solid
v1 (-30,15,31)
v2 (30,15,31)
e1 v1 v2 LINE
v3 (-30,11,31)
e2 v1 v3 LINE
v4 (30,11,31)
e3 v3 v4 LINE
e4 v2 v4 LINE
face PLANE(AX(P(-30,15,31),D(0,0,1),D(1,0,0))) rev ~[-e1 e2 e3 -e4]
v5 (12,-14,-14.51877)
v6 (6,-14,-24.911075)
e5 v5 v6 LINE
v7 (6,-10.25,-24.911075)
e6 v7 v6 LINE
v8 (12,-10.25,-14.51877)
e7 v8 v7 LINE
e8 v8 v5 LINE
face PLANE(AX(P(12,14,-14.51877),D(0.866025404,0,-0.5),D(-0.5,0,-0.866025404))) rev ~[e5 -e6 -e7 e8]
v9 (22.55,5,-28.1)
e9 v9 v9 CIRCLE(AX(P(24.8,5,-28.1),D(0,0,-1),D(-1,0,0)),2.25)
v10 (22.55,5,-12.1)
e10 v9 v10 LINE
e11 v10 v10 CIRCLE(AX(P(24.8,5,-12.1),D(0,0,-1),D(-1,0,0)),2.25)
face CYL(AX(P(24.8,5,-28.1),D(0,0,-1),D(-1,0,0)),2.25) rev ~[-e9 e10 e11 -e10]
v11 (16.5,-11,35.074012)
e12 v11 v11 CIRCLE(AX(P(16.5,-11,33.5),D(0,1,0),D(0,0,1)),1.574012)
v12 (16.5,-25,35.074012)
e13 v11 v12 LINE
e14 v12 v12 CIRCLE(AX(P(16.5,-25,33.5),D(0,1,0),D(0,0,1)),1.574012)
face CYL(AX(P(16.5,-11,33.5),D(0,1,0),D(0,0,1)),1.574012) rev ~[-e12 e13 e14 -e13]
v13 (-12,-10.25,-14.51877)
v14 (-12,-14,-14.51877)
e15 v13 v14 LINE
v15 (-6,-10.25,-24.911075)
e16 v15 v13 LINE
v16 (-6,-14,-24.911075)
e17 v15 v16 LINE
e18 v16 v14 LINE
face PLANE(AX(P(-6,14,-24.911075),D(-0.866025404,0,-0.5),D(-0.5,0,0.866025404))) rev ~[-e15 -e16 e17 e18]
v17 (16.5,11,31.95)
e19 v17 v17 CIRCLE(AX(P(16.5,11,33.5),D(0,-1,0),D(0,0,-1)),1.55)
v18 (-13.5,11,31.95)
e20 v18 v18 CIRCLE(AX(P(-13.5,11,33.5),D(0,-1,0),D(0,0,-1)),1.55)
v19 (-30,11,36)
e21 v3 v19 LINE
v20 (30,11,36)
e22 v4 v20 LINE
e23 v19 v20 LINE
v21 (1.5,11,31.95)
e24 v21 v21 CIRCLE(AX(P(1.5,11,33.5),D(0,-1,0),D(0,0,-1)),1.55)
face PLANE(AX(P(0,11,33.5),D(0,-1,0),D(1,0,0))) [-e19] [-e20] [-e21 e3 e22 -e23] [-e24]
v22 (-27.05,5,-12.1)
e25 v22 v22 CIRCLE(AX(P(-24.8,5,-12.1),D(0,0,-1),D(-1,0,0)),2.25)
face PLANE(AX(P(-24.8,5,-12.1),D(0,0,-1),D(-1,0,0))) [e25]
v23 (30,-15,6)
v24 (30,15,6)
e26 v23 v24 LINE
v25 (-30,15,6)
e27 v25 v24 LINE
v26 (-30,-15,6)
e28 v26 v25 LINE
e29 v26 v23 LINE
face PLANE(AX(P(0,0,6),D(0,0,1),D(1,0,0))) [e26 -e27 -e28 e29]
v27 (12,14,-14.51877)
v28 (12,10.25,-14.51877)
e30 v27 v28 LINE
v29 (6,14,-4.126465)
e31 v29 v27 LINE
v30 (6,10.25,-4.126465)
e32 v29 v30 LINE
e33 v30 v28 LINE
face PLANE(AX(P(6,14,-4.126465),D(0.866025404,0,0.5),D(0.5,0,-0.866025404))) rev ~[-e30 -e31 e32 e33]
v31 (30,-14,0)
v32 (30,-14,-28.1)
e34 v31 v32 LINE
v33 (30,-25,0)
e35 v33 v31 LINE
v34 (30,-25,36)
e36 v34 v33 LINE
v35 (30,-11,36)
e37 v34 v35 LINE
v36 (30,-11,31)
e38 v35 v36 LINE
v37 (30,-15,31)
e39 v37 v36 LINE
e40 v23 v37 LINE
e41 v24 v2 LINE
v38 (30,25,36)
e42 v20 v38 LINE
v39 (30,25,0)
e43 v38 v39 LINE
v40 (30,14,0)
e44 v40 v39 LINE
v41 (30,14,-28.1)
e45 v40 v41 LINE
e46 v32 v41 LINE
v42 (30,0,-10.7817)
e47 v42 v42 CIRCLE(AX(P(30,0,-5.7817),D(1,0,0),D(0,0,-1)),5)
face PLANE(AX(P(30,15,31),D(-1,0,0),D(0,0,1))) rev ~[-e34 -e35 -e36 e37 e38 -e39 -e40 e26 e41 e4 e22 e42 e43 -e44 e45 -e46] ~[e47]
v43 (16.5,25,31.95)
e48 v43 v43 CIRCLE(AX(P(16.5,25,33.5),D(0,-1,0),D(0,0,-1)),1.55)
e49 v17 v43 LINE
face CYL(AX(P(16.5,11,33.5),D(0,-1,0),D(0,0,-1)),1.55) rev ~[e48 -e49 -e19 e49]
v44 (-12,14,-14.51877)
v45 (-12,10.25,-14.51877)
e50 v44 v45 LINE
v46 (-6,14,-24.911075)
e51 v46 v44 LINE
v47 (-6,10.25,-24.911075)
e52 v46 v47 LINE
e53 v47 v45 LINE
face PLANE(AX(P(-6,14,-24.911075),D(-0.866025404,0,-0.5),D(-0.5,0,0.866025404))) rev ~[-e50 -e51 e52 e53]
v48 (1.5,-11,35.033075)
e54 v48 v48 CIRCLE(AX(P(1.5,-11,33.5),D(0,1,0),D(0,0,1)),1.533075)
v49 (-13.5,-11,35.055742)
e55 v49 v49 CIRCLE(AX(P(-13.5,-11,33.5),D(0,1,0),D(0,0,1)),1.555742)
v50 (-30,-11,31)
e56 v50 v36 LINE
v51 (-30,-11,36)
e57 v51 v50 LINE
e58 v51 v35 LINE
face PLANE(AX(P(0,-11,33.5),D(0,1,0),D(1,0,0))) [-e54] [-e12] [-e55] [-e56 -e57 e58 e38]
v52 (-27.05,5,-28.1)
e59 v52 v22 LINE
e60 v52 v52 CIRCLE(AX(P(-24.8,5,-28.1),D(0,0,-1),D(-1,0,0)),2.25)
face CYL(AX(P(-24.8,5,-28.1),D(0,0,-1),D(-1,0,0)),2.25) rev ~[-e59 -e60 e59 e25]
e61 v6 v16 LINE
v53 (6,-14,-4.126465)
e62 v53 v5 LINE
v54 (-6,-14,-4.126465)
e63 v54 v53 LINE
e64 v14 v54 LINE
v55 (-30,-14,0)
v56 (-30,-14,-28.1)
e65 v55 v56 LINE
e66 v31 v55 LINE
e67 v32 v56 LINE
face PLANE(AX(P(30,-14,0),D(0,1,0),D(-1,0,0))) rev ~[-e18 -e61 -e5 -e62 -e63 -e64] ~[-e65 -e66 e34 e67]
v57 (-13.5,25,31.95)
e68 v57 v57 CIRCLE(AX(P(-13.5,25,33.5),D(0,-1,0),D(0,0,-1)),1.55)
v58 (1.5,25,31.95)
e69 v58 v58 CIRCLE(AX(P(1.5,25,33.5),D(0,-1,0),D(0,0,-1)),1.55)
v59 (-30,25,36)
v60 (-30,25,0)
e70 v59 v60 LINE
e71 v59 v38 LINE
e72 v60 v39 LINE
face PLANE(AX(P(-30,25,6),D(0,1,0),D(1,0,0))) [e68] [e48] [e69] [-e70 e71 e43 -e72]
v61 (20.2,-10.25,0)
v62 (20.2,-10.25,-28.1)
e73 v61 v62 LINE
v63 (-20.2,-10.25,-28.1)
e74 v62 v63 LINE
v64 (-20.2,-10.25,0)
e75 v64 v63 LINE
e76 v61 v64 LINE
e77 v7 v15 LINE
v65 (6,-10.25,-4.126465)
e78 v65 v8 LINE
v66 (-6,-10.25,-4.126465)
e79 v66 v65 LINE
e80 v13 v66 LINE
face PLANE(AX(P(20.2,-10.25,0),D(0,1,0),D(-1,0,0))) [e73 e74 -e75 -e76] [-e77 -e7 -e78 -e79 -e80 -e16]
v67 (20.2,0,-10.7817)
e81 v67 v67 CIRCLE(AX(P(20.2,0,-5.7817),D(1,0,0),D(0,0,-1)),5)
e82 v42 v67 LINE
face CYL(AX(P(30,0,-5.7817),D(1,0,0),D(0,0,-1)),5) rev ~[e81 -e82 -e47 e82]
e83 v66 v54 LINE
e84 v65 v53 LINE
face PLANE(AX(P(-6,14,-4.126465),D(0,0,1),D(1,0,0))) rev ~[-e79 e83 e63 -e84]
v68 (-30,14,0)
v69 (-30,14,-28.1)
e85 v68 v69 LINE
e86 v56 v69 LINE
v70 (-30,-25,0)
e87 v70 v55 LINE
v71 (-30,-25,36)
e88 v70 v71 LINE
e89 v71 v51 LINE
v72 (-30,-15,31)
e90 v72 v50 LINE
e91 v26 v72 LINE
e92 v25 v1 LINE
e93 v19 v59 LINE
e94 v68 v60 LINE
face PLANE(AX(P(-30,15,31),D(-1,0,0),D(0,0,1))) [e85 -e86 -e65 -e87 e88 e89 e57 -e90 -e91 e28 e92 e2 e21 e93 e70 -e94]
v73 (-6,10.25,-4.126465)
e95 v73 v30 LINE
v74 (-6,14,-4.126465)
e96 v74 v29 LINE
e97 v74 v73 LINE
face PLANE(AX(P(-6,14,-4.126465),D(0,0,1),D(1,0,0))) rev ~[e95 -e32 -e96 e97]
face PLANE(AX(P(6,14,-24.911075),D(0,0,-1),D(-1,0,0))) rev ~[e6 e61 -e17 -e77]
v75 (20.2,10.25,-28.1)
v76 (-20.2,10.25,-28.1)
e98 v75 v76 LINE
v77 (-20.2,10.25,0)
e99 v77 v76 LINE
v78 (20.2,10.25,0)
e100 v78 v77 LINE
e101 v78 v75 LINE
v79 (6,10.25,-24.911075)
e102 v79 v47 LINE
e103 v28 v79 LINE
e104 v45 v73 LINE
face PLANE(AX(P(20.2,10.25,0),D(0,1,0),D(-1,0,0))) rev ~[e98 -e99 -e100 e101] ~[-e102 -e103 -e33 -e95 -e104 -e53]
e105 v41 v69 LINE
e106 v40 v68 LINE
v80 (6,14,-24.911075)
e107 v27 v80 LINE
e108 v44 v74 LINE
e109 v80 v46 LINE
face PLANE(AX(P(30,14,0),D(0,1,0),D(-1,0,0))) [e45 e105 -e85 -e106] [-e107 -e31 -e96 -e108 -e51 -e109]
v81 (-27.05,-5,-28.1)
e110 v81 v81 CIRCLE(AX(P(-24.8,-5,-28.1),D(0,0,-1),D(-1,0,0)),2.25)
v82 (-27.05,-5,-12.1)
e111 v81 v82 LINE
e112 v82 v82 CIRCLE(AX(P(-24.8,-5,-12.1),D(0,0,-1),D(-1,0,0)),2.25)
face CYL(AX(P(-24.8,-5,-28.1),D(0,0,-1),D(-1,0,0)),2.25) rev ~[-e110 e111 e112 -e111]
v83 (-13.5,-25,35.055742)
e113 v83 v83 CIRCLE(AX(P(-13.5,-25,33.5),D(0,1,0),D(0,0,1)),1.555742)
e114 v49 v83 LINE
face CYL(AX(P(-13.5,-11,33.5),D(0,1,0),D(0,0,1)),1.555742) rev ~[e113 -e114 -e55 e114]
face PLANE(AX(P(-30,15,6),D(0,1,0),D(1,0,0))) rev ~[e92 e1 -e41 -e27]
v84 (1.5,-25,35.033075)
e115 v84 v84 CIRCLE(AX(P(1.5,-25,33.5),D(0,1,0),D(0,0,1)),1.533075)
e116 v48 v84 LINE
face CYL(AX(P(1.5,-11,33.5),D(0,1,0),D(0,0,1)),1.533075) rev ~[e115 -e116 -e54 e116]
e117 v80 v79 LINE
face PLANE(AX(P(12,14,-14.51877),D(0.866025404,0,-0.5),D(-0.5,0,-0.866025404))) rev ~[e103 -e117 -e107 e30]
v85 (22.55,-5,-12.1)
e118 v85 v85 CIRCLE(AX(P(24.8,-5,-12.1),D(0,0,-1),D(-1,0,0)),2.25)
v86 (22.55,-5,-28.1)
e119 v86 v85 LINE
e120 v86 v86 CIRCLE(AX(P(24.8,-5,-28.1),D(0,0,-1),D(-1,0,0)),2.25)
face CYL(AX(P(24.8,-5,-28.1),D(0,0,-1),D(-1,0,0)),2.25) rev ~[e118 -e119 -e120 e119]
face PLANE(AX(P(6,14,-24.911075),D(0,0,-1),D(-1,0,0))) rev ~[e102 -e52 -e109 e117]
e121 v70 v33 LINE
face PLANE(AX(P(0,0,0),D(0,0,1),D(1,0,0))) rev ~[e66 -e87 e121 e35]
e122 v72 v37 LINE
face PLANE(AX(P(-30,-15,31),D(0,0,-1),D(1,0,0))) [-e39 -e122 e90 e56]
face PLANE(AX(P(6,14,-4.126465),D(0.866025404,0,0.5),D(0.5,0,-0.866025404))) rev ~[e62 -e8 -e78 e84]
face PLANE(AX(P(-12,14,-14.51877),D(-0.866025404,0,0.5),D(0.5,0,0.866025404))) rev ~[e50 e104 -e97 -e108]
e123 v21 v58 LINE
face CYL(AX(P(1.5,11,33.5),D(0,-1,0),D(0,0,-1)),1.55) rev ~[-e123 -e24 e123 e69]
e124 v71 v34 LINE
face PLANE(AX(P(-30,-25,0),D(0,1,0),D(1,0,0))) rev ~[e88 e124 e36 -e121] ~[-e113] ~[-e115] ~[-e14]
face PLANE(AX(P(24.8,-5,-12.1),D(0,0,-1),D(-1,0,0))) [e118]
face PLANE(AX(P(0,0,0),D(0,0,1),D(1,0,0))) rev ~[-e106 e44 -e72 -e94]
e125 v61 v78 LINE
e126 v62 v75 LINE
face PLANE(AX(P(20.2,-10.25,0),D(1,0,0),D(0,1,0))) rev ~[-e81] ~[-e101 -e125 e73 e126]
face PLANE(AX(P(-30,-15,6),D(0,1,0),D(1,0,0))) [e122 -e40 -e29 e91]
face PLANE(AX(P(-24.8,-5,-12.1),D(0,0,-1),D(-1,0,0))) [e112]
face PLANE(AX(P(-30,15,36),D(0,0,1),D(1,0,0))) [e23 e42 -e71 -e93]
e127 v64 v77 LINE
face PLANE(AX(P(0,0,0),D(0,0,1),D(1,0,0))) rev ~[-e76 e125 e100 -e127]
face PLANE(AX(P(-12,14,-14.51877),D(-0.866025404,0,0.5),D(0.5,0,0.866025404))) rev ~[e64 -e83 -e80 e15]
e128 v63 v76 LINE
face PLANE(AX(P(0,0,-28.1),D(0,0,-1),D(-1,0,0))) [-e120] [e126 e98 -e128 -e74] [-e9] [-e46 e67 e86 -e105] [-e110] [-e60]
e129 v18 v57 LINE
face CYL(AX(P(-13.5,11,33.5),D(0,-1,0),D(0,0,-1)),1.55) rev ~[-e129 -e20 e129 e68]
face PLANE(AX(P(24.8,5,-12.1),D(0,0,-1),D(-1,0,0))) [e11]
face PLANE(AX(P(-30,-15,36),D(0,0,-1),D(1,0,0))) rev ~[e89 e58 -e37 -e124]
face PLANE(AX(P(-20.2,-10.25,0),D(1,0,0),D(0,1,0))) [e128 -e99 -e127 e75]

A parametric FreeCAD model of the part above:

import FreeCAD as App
import Part
import Sketcher
from FreeCAD import Vector
Q = App.Units.Quantity

doc = App.newDocument("Part")
body = doc.addObject("PartDesign::Body", "Body")

sketch1 = doc.addObject("Sketcher::SketchObject", "Sketch")
body.addObject(sketch1)
sketch1.AttachmentSupport = (doc.XY_Plane, [""])
sketch1.MapMode = "FlatFace"
sketch1.addGeometry([
    Part.LineSegment(Vector(-30, 25, 0), Vector(-30, -25, 0)),
    Part.LineSegment(Vector(-30, -25, 0), Vector(30, -25, 0)),
    Part.LineSegment(Vector(30, -25, 0), Vector(30, 25, 0)),
    Part.LineSegment(Vector(30, 25, 0), Vector(-30, 25, 0)),
], False)
sketch1.addConstraint([
    Sketcher.Constraint("Coincident", 0, 2, 1, 1),
    Sketcher.Constraint("Coincident", 1, 2, 2, 1),
    Sketcher.Constraint("Coincident", 2, 2, 3, 1),
    Sketcher.Constraint("Coincident", 3, 2, 0, 1),
    Sketcher.Constraint("Vertical", 0),
    Sketcher.Constraint("Horizontal", 1),
    Sketcher.Constraint("Vertical", 2),
    Sketcher.Constraint("Horizontal", 3),
    Sketcher.Constraint("Symmetric", 0, 2, 2, 2, -1, 1),
    Sketcher.Constraint("DistanceX", 1, 1, 1, 2, 60.0),
    Sketcher.Constraint("DistanceY", 0, 2, 0, 1, 50.0),
])
pad1 = doc.addObject("PartDesign::Pad", "Pad")
body.addObject(pad1)
pad1.Profile = sketch1
pad1.Length = 6

sketch2 = doc.addObject("Sketcher::SketchObject", "Sketch001")
body.addObject(sketch2)
sketch2.AttachmentSupport = (doc.XY_Plane, [""])
sketch2.MapMode = "FlatFace"
sketch2.AttachmentOffset = App.Placement(Vector(0, 0, 6), App.Rotation())
sketch2.addGeometry([
    Part.LineSegment(Vector(-30, 25, 0), Vector(-30, 15, 0)),
    Part.LineSegment(Vector(-30, 15, 0), Vector(30, 15, 0)),
    Part.LineSegment(Vector(30, 15, 0), Vector(30, 25, 0)),
    Part.LineSegment(Vector(30, 25, 0), Vector(-30, 25, 0)),
    Part.LineSegment(Vector(-30, -15, 0), Vector(-30, -25, 0)),
    Part.LineSegment(Vector(-30, -25, 0), Vector(30, -25, 0)),
    Part.LineSegment(Vector(30, -25, 0), Vector(30, -15, 0)),
    Part.LineSegment(Vector(30, -15, 0), Vector(-30, -15, 0)),
], False)
sketch2.addConstraint([
    Sketcher.Constraint("Coincident", 0, 2, 1, 1),
    Sketcher.Constraint("Coincident", 1, 2, 2, 1),
    Sketcher.Constraint("Coincident", 2, 2, 3, 1),
    Sketcher.Constraint("Coincident", 3, 2, 0, 1),
    Sketcher.Constraint("Coincident", 4, 2, 5, 1),
    Sketcher.Constraint("Coincident", 5, 2, 6, 1),
    Sketcher.Constraint("Coincident", 6, 2, 7, 1),
    Sketcher.Constraint("Coincident", 7, 2, 4, 1),
    Sketcher.Constraint("Vertical", 0),
    Sketcher.Constraint("Horizontal", 1),
    Sketcher.Constraint("Vertical", 2),
    Sketcher.Constraint("Horizontal", 3),
    Sketcher.Constraint("Vertical", 4),
    Sketcher.Constraint("Horizontal", 5),
    Sketcher.Constraint("Vertical", 6),
    Sketcher.Constraint("Horizontal", 7),
    Sketcher.Constraint("Symmetric", 2, 2, 4, 2, -1, 1),
    Sketcher.Constraint("Symmetric", 0, 2, 6, 2, -1, 1),
    Sketcher.Constraint("Vertical", 3, 2, 4, 2),
    Sketcher.Constraint("DistanceX", 1, 1, 1, 2, 60.0),
    Sketcher.Constraint("DistanceY", 0, 2, 0, 1, 10.0),
    Sketcher.Constraint("DistanceY", -1, 1, 0, 2, 15.0),
])
pad2 = doc.addObject("PartDesign::Pad", "Pad001")
body.addObject(pad2)
pad2.Profile = sketch2
pad2.Length = 30

sketch3 = doc.addObject("Sketcher::SketchObject", "Sketch002")
body.addObject(sketch3)
sketch3.AttachmentSupport = (doc.XZ_Plane, [""])
sketch3.MapMode = "FlatFace"
sketch3.AttachmentOffset = App.Placement(Vector(0, 0, 15), App.Rotation())
sketch3.addGeometry([
    Part.LineSegment(Vector(-30, 31, 0), Vector(-30, 36, 0)),
    Part.LineSegment(Vector(-30, 36, 0), Vector(30, 36, 0)),
    Part.LineSegment(Vector(30, 36, 0), Vector(30, 31, 0)),
    Part.LineSegment(Vector(30, 31, 0), Vector(-30, 31, 0)),
], False)
sketch3.addConstraint([
    Sketcher.Constraint("Coincident", 0, 2, 1, 1),
    Sketcher.Constraint("Coincident", 1, 2, 2, 1),
    Sketcher.Constraint("Coincident", 2, 2, 3, 1),
    Sketcher.Constraint("Coincident", 3, 2, 0, 1),
    Sketcher.Constraint("Vertical", 0),
    Sketcher.Constraint("Horizontal", 1),
    Sketcher.Constraint("Vertical", 2),
    Sketcher.Constraint("Horizontal", 3),
    Sketcher.Constraint("DistanceX", 1, 1, 1, 2, 60.0),
    Sketcher.Constraint("DistanceY", 0, 1, 0, 2, 5.0),
    Sketcher.Constraint("DistanceX", 0, 2, -1, 1, 30.0),
    Sketcher.Constraint("DistanceY", -1, 1, 0, 2, 36.0),
])
pad3 = doc.addObject("PartDesign::Pad", "Pad002")
body.addObject(pad3)
pad3.Profile = sketch3
pad3.Length = 4
pad3.Reversed = True

sketch4 = doc.addObject("Sketcher::SketchObject", "Sketch003")
body.addObject(sketch4)
sketch4.AttachmentSupport = (doc.XZ_Plane, [""])
sketch4.MapMode = "FlatFace"
sketch4.AttachmentOffset = App.Placement(Vector(0, 0, -15), App.Rotation())
sketch4.addGeometry([
    Part.LineSegment(Vector(-30, 36, 0), Vector(-30, 31, 0)),
    Part.LineSegment(Vector(-30, 31, 0), Vector(30, 31, 0)),
    Part.LineSegment(Vector(30, 31, 0), Vector(30, 36, 0)),
    Part.LineSegment(Vector(30, 36, 0), Vector(-30, 36, 0)),
], False)
sketch4.addConstraint([
    Sketcher.Constraint("Coincident", 0, 2, 1, 1),
    Sketcher.Constraint("Coincident", 1, 2, 2, 1),
    Sketcher.Constraint("Coincident", 2, 2, 3, 1),
    Sketcher.Constraint("Coincident", 3, 2, 0, 1),
    Sketcher.Constraint("Vertical", 0),
    Sketcher.Constraint("Horizontal", 1),
    Sketcher.Constraint("Vertical", 2),
    Sketcher.Constraint("Horizontal", 3),
    Sketcher.Constraint("DistanceX", 1, 1, 1, 2, 60.0),
    Sketcher.Constraint("DistanceY", 0, 2, 0, 1, 5.0),
    Sketcher.Constraint("DistanceX", 0, 2, -1, 1, 30.0),
    Sketcher.Constraint("DistanceY", -1, 1, 0, 2, 31.0),
])
pad4 = doc.addObject("PartDesign::Pad", "Pad003")
body.addObject(pad4)
pad4.Profile = sketch4
pad4.Length = 4

sketch5 = doc.addObject("Sketcher::SketchObject", "Sketch004")
body.addObject(sketch5)
sketch5.AttachmentSupport = (doc.XZ_Plane, [""])
sketch5.MapMode = "FlatFace"
sketch5.AttachmentOffset = App.Placement(Vector(0, 0, 11), App.Rotation())
sketch5.addGeometry([
    Part.Circle(Vector(-13.5, 33.5, 0), Vector(0, 0, 1), 1.6),
    Part.Circle(Vector(1.5, 33.5, 0), Vector(0, 0, 1), 1.5),
    Part.Circle(Vector(16.5, 33.5, 0), Vector(0, 0, 1), 1.6),
], False)
sketch5.addConstraint([
    Sketcher.Constraint("Horizontal", 0, 3, 1, 3),
    Sketcher.Constraint("Horizontal", 1, 3, 2, 3),
    Sketcher.Constraint("DistanceX", 0, 3, 1, 3, 15.0),
    Sketcher.Constraint("DistanceX", 1, 3, 2, 3, 15.0),
    Sketcher.Constraint("DistanceX", 0, 3, -1, 1, 13.5),
    Sketcher.Constraint("DistanceY", -1, 1, 0, 3, 33.5),
    Sketcher.Constraint("Diameter", 1, 3.06615),
    Sketcher.Constraint("Diameter", 0, 3.111484),
    Sketcher.Constraint("Diameter", 2, 3.148025),
])
pocket1 = doc.addObject("PartDesign::Pocket", "Pocket")
body.addObject(pocket1)
pocket1.Profile = sketch5
pocket1.Type = "ThroughAll"
pocket1.Reversed = True

sketch6 = doc.addObject("Sketcher::SketchObject", "Sketch005")
body.addObject(sketch6)
sketch6.AttachmentSupport = (doc.XZ_Plane, [""])
sketch6.MapMode = "FlatFace"
sketch6.AttachmentOffset = App.Placement(Vector(0, 0, -11), App.Rotation())
sketch6.addGeometry([
    Part.Circle(Vector(16.5, 33.5, 0), Vector(0, 0, 1), 1.6),
    Part.Circle(Vector(1.5, 33.5, 0), Vector(0, 0, 1), 1.6),
    Part.Circle(Vector(-13.5, 33.5, 0), Vector(0, 0, 1), 1.6),
], False)
sketch6.addConstraint([
    Sketcher.Constraint("Equal", 0, 1),
    Sketcher.Constraint("Equal", 1, 2),
    Sketcher.Constraint("Horizontal", 0, 3, 1, 3),
    Sketcher.Constraint("Horizontal", 1, 3, 2, 3),
    Sketcher.Constraint("Diameter", 0, 3.1),
    Sketcher.Constraint("DistanceX", 1, 3, 0, 3, 15.0),
    Sketcher.Constraint("DistanceX", 2, 3, 1, 3, 15.0),
    Sketcher.Constraint("DistanceX", -1, 1, 0, 3, 16.5),
    Sketcher.Constraint("DistanceY", -1, 1, 0, 3, 33.5),
])
pocket2 = doc.addObject("PartDesign::Pocket", "Pocket001")
body.addObject(pocket2)
pocket2.Profile = sketch6
pocket2.Type = "ThroughAll"

sketch7 = doc.addObject("Sketcher::SketchObject", "Sketch006")
body.addObject(sketch7)
sketch7.AttachmentSupport = (doc.XY_Plane, [""])
sketch7.MapMode = "FlatFace"
sketch7.addGeometry([
    Part.LineSegment(Vector(30, 14, 0), Vector(30, -14, 0)),
    Part.LineSegment(Vector(30, -14, 0), Vector(-30, -14, 0)),
    Part.LineSegment(Vector(-30, -14, 0), Vector(-30, 14, 0)),
    Part.LineSegment(Vector(-30, 14, 0), Vector(30, 14, 0)),
    Part.LineSegment(Vector(-20, -10, 0), Vector(20, -10, 0)),
    Part.LineSegment(Vector(20, -10, 0), Vector(20, 10, 0)),
    Part.LineSegment(Vector(20, 10, 0), Vector(-20, 10, 0)),
    Part.LineSegment(Vector(-20, 10, 0), Vector(-20, -10, 0)),
], False)
sketch7.addConstraint([
    Sketcher.Constraint("Coincident", 0, 2, 1, 1),
    Sketcher.Constraint("Coincident", 1, 2, 2, 1),
    Sketcher.Constraint("Coincident", 2, 2, 3, 1),
    Sketcher.Constraint("Coincident", 3, 2, 0, 1),
    Sketcher.Constraint("Coincident", 4, 2, 5, 1),
    Sketcher.Constraint("Coincident", 5, 2, 6, 1),
    Sketcher.Constraint("Coincident", 6, 2, 7, 1),
    Sketcher.Constraint("Coincident", 7, 2, 4, 1),
    Sketcher.Constraint("Vertical", 0),
    Sketcher.Constraint("Horizontal", 1),
    Sketcher.Constraint("Vertical", 2),
    Sketcher.Constraint("Horizontal", 3),
    Sketcher.Constraint("Horizontal", 4),
    Sketcher.Constraint("Vertical", 5),
    Sketcher.Constraint("Horizontal", 6),
    Sketcher.Constraint("Vertical", 7),
    Sketcher.Constraint("Symmetric", 0, 2, 2, 2, -1, 1),
    Sketcher.Constraint("Symmetric", 4, 2, 6, 2, -1, 1),
    Sketcher.Constraint("DistanceX", 1, 2, 1, 1, 60.0),
    Sketcher.Constraint("DistanceY", 0, 2, 0, 1, 28.0),
    Sketcher.Constraint("DistanceX", 4, 1, 4, 2, 40.4),
    Sketcher.Constraint("DistanceY", 5, 1, 5, 2, 20.5),
])
pad5 = doc.addObject("PartDesign::Pad", "Pad004")
body.addObject(pad5)
pad5.Profile = sketch7
pad5.Length = 28.1
pad5.Reversed = True

sketch8 = doc.addObject("Sketcher::SketchObject", "Sketch007")
body.addObject(sketch8)
sketch8.AttachmentSupport = (doc.YZ_Plane, [""])
sketch8.MapMode = "FlatFace"
sketch8.AttachmentOffset = App.Placement(Vector(0, 0, 30), App.Rotation())
sketch8.addGeometry(Part.Circle(Vector(0, -6, 0), Vector(0, 0, 1), 5), False)
sketch8.addConstraint([
    Sketcher.Constraint("PointOnObject", 0, 3, -2),
    Sketcher.Constraint("Diameter", 0, 10.0),
    Sketcher.Constraint("DistanceY", 0, 3, -1, 1, 5.7817),
])
pocket3 = doc.addObject("PartDesign::Pocket", "Pocket002")
body.addObject(pocket3)
pocket3.Profile = sketch8
pocket3.Length = 10

sketch9 = doc.addObject("Sketcher::SketchObject", "Sketch008")
body.addObject(sketch9)
sketch9.AttachmentSupport = (doc.XY_Plane, [""])
sketch9.MapMode = "FlatFace"
sketch9.AttachmentOffset = App.Placement(Vector(0, 0, -28.1), App.Rotation())
sketch9.addGeometry([
    Part.Circle(Vector(-24.8, -5, 0), Vector(0, 0, 1), 2.2),
    Part.Circle(Vector(-24.8, 5, 0), Vector(0, 0, 1), 2.2),
    Part.Circle(Vector(24.8, -5, 0), Vector(0, 0, 1), 2.2),
    Part.Circle(Vector(24.8, 5, 0), Vector(0, 0, 1), 2.2),
], False)
sketch9.addConstraint([
    Sketcher.Constraint("Equal", 0, 1),
    Sketcher.Constraint("Equal", 1, 2),
    Sketcher.Constraint("Equal", 2, 3),
    Sketcher.Constraint("Symmetric", 1, 3, 2, 3, -1, 1),
    Sketcher.Constraint("Symmetric", 0, 3, 3, 3, -1, 1),
    Sketcher.Constraint("Symmetric", 0, 3, 2, 3, -2),
    Sketcher.Constraint("Diameter", 0, 4.5),
    Sketcher.Constraint("DistanceY", 0, 3, -1, 1, 5.0),
    Sketcher.Constraint("DistanceX", 0, 3, -1, 1, 24.8),
])
pocket4 = doc.addObject("PartDesign::Pocket", "Pocket003")
body.addObject(pocket4)
pocket4.Profile = sketch9
pocket4.Length = 16
pocket4.Reversed = True

sketch10 = doc.addObject("Sketcher::SketchObject", "Sketch009")
body.addObject(sketch10)
sketch10.AttachmentSupport = (doc.XZ_Plane, [""])
sketch10.MapMode = "FlatFace"
sketch10.AttachmentOffset = App.Placement(Vector(0, 0, -14), App.Rotation())
sketch10.addGeometry([
    Part.LineSegment(Vector(-12, -15, 0), Vector(-6, -4, 0)),
    Part.LineSegment(Vector(-6, -4, 0), Vector(6, -4, 0)),
    Part.LineSegment(Vector(6, -4, 0), Vector(12, -15, 0)),
    Part.LineSegment(Vector(12, -15, 0), Vector(6, -25, 0)),
    Part.LineSegment(Vector(6, -25, 0), Vector(-6, -25, 0)),
    Part.LineSegment(Vector(-6, -25, 0), Vector(-12, -15, 0)),
], False)
sketch10.addConstraint([
    Sketcher.Constraint("Coincident", 0, 2, 1, 1),
    Sketcher.Constraint("Coincident", 1, 2, 2, 1),
    Sketcher.Constraint("Coincident", 2, 2, 3, 1),
    Sketcher.Constraint("Coincident", 3, 2, 4, 1),
    Sketcher.Constraint("Coincident", 4, 2, 5, 1),
    Sketcher.Constraint("Coincident", 5, 2, 0, 1),
    Sketcher.Constraint("Horizontal", 1),
    Sketcher.Constraint("Horizontal", 4),
    Sketcher.Constraint("Symmetric", 2, 2, 5, 2, -2),
    Sketcher.Constraint("Parallel", 0, 3),
    Sketcher.Constraint("Parallel", 2, 5),
    Sketcher.Constraint("Vertical", 1, 2, 3, 2),
    Sketcher.Constraint("Vertical", 0, 2, 4, 2),
    Sketcher.Constraint("DistanceX", 1, 1, 1, 2, 12.0),
    Sketcher.Constraint("Angle", 0, Q("60 deg")),
    Sketcher.Constraint("Distance", 0, 12.0),
    Sketcher.Constraint("DistanceY", 2, 2, -1, 1, 14.51877),
])
pocket5 = doc.addObject("PartDesign::Pocket", "Pocket004")
body.addObject(pocket5)
pocket5.Profile = sketch10
pocket5.Type = "ThroughAll"
pocket5.Reversed = True

doc.recompute()
